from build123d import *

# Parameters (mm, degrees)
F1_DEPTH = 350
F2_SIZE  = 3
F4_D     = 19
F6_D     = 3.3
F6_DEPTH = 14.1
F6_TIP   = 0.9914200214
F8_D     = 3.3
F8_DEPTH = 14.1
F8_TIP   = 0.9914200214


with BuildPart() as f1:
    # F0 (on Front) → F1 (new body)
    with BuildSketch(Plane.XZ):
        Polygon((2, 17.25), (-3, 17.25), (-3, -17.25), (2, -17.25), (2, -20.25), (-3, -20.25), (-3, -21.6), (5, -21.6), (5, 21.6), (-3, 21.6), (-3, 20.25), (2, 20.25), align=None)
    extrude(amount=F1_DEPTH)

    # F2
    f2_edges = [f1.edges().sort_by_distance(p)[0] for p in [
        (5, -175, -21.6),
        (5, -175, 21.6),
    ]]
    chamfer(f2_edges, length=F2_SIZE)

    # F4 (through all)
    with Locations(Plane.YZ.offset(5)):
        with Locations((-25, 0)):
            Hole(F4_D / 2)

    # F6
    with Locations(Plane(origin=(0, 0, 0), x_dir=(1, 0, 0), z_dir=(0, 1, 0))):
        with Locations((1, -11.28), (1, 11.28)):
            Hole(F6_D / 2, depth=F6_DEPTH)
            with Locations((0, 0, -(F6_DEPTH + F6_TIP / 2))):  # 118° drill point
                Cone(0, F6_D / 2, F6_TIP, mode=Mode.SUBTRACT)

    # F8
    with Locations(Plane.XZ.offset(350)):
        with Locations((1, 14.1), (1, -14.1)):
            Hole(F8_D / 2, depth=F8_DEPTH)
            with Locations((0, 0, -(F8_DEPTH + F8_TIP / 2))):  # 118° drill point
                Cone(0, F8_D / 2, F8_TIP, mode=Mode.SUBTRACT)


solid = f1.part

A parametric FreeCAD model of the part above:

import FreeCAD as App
import Part
import Sketcher
from FreeCAD import Vector


def edges_at(feature, points):
    """Names of the edges that pass closest to the given points."""
    edges = feature.Shape.Edges
    near = lambda p: min(range(len(edges)), key=lambda i: edges[i].distToShape(Part.Vertex(*p))[0])
    return sorted({f"Edge{near(p) + 1}" for p in points})


def add_polygon(sketch, points):
    """Adds a closed chain of lines whose ends are joined by coincident constraints."""
    first, n = sketch.GeometryCount, len(points)
    for a, b in zip(points, points[1:] + points[:1]):
        sketch.addGeometry(Part.LineSegment(App.Vector(*a, 0), App.Vector(*b, 0)), False)
    for i in range(n):
        sketch.addConstraint(Sketcher.Constraint("Coincident", first + i, 2, first + (i + 1) % n, 1))

doc = App.newDocument("Part")
body = doc.addObject("PartDesign::Body", "Body")

sketch1 = body.newObject("Sketcher::SketchObject", "Sketch")
sketch1.AttachmentSupport = (doc.getObject("XZ_Plane"), [""])
sketch1.MapMode = "FlatFace"
add_polygon(sketch1, [(2, 17.2), (-3, 17.2), (-3, -17.2), (2, -17.2), (2, -20.2), (-3, -20.2), (-3, -21.6), (5, -21.6), (5, 21.6), (-3, 21.6), (-3, 20.2), (2, 20.2)])
sketch1.addConstraint(Sketcher.Constraint("Horizontal", 0))
sketch1.addConstraint(Sketcher.Constraint("Vertical", 1))
sketch1.addConstraint(Sketcher.Constraint("Horizontal", 2))
sketch1.addConstraint(Sketcher.Constraint("Vertical", 3))
sketch1.addConstraint(Sketcher.Constraint("Horizontal", 4))
sketch1.addConstraint(Sketcher.Constraint("Vertical", 5))
sketch1.addConstraint(Sketcher.Constraint("Horizontal", 6))
sketch1.addConstraint(Sketcher.Constraint("Vertical", 7))
sketch1.addConstraint(Sketcher.Constraint("Horizontal", 8))
sketch1.addConstraint(Sketcher.Constraint("Vertical", 9))
sketch1.addConstraint(Sketcher.Constraint("Horizontal", 10))
sketch1.addConstraint(Sketcher.Constraint("Vertical", 11))
sketch1.addConstraint(Sketcher.Constraint("Symmetric", 5, 2, 8, 2, -1))
sketch1.addConstraint(Sketcher.Constraint("Symmetric", 3, 2, 10, 2, -1))
sketch1.addConstraint(Sketcher.Constraint("Vertical", 1, 2, 4, 2))
sketch1.addConstraint(Sketcher.Constraint("Equal", 3, 11))
sketch1.addConstraint(Sketcher.Constraint("DistanceX", 0, 2, 0, 1, 5.0))
sketch1.addConstraint(Sketcher.Constraint("DistanceX", 6, 1, 6, 2, 8.0))
sketch1.addConstraint(Sketcher.Constraint("DistanceY", 3, 2, 3, 1, 3.0))
sketch1.addConstraint(Sketcher.Constraint("DistanceY", 1, 2, 1, 1, 34.5))
sketch1.addConstraint(Sketcher.Constraint("DistanceY", 7, 1, 7, 2, 43.2))
sketch1.addConstraint(Sketcher.Constraint("DistanceX", 0, 2, -1, 1, 3.0))
pad1 = body.newObject("PartDesign::Pad", "Pad")
pad1.Profile = sketch1
pad1.Length = 350
doc.recompute()

chamfer = body.newObject("PartDesign::Chamfer", "Chamfer")
chamfer.Base = (pad1, edges_at(pad1, [(5, -175, -21.6), (5, -175, 21.6)]))
chamfer.Size = 3

sketch2 = body.newObject("Sketcher::SketchObject", "Sketch001")
sketch2.AttachmentSupport = (doc.getObject("YZ_Plane"), [""])
sketch2.MapMode = "FlatFace"
sketch2.AttachmentOffset = App.Placement(Vector(0, 0, 5), App.Rotation())
sketch2.addGeometry(Part.Circle(Vector(-25, 0, 0), Vector(0, 0, 1), 10), False)
sketch2.addConstraint(Sketcher.Constraint("PointOnObject", 0, 3, -1))
sketch2.addConstraint(Sketcher.Constraint("Diameter", 0, 19.0))
sketch2.addConstraint(Sketcher.Constraint("DistanceX", 0, 3, -1, 1, 25.0))
doc.recompute()
hole = body.newObject("PartDesign::Hole", "Hole")
hole.Profile = sketch2
hole.ThreadType = "None"
hole.Diameter = 19
hole.DepthType = "ThroughAll"

sketch3 = body.newObject("Sketcher::SketchObject", "Sketch002")
sketch3.AttachmentSupport = (doc.getObject("XZ_Plane"), [""])
sketch3.MapMode = "FlatFace"
sketch3.addGeometry(Part.Circle(Vector(1, 11.3, 0), Vector(0, 0, 1), 1.6), False)
sketch3.addGeometry(Part.Circle(Vector(1, -11.3, 0), Vector(0, 0, 1), 1.6), False)
sketch3.addConstraint(Sketcher.Constraint("Equal", 0, 1))
sketch3.addConstraint(Sketcher.Constraint("Symmetric", 0, 3, 1, 3, -1))
sketch3.addConstraint(Sketcher.Constraint("Diameter", 0, 3.3))
sketch3.addConstraint(Sketcher.Constraint("DistanceX", -1, 1, 0, 3, 1.0))
sketch3.addConstraint(Sketcher.Constraint("DistanceY", -1, 1, 0, 3, 11.28))
doc.recompute()
hole2 = body.newObject("PartDesign::Hole", "Hole001")
hole2.Profile = sketch3
hole2.ThreadType = "None"
hole2.Diameter = 3.3
hole2.DepthType = "Dimension"
hole2.Depth = 14.1
hole2.DrillPoint = "Angled"
hole2.DrillPointAngle = 118
hole2.Reversed = True

sketch4 = body.newObject("Sketcher::SketchObject", "Sketch003")
sketch4.AttachmentSupport = (doc.getObject("XZ_Plane"), [""])
sketch4.MapMode = "FlatFace"
sketch4.AttachmentOffset = App.Placement(Vector(0, 0, 350), App.Rotation())
sketch4.addGeometry(Part.Circle(Vector(1, 14.1, 0), Vector(0, 0, 1), 1.6), False)
sketch4.addGeometry(Part.Circle(Vector(1, -14.1, 0), Vector(0, 0, 1), 1.6), False)
sketch4.addConstraint(Sketcher.Constraint("Equal", 0, 1))
sketch4.addConstraint(Sketcher.Constraint("Symmetric", 0, 3, 1, 3, -1))
sketch4.addConstraint(Sketcher.Constraint("Diameter", 0, 3.3))
sketch4.addConstraint(Sketcher.Constraint("DistanceX", -1, 1, 0, 3, 1.0))
sketch4.addConstraint(Sketcher.Constraint("DistanceY", -1, 1, 0, 3, 14.1))
doc.recompute()
hole3 = body.newObject("PartDesign::Hole", "Hole002")
hole3.Profile = sketch4
hole3.ThreadType = "None"
hole3.Diameter = 3.3
hole3.DepthType = "Dimension"
hole3.Depth = 14.1
hole3.DrillPoint = "Angled"
hole3.DrillPointAngle = 118

doc.recompute()
